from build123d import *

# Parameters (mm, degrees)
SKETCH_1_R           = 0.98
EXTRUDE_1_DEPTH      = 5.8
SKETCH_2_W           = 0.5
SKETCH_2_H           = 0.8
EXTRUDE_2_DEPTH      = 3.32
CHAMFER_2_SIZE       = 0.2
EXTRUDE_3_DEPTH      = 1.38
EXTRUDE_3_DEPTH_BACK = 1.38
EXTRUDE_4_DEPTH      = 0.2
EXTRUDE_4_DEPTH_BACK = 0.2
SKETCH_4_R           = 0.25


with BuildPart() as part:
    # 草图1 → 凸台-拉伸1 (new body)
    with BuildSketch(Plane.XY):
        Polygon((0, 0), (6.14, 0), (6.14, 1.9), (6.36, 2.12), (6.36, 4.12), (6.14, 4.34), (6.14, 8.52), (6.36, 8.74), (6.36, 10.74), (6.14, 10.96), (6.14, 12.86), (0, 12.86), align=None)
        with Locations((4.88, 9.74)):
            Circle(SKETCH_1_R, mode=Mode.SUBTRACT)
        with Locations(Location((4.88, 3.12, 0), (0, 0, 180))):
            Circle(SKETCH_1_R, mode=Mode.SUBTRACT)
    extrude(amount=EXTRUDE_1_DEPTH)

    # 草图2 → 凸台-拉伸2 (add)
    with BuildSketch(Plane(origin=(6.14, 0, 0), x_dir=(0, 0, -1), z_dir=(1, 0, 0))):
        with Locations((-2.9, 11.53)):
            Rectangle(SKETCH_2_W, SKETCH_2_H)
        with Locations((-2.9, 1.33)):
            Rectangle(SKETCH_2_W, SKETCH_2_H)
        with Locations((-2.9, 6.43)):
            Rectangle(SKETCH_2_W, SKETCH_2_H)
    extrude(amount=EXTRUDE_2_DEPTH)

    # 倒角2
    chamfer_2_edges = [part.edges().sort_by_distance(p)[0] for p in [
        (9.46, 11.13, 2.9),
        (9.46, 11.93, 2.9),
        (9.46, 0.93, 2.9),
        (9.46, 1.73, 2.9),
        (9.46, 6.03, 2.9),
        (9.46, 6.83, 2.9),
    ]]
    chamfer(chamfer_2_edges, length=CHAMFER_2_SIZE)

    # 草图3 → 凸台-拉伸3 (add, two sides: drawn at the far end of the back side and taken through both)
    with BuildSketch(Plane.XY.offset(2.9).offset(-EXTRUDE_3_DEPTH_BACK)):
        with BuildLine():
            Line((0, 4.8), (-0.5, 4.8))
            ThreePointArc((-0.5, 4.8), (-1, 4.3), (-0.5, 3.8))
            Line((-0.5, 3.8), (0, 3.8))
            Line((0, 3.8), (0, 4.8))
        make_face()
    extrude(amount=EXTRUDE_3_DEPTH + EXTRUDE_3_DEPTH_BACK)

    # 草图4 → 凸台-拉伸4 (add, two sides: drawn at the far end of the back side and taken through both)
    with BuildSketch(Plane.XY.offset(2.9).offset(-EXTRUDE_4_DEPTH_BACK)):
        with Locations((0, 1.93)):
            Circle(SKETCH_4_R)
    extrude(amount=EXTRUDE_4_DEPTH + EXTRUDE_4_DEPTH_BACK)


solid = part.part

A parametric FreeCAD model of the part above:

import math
import FreeCAD as App
import Part
import Sketcher


def edges_at(feature, points):
    """Names of the edges that pass closest to the given points."""
    edges = feature.Shape.Edges
    near = lambda p: min(range(len(edges)), key=lambda i: edges[i].distToShape(Part.Vertex(*p))[0])
    return sorted({f"Edge{near(p) + 1}" for p in points})


def add_polygon(sketch, points):
    """Adds a closed chain of lines whose ends are joined by coincident constraints."""
    first, n = sketch.GeometryCount, len(points)
    for a, b in zip(points, points[1:] + points[:1]):
        sketch.addGeometry(Part.LineSegment(App.Vector(*a, 0), App.Vector(*b, 0)), False)
    for i in range(n):
        sketch.addConstraint(Sketcher.Constraint("Coincident", first + i, 2, first + (i + 1) % n, 1))

doc = App.newDocument("Part")
params = doc.addObject("Spreadsheet::Sheet", "Params")
for row, (alias, value) in enumerate([
    ("sketch1_diameter", "1.96 mm"),
    ("sketch1_height", "2 mm"),
    ("sketch1_height2", "1.9 mm"),
    ("sketch1_width", "6.14 mm"),
    ("sketch1_height3", "4.18 mm"),
    ("pad1_length", "5.8 mm"),
    ("sketch2_width", "0.8 mm"),
    ("sketch2_height", "0.5 mm"),
    ("pad2_length", "3.32 mm"),
    ("chamfer_size", "0.2 mm"),
    ("sketch3_radius", "0.5 mm"),
    ("sketch3_width", "0.5 mm"),
    ("pad3_length", "1.38 mm"),
    ("pad3_length2", "1.38 mm"),
    ("sketch4_diameter", "0.5 mm"),
    ("pad4_length", "0.2 mm"),
    ("pad4_length2", "0.2 mm"),
], start=1):
    params.set(f"A{row}", alias)
    params.set(f"B{row}", "=" + value)
    params.setAlias(f"B{row}", alias)

body = doc.addObject("PartDesign::Body", "Body")

# Sketch on XY plane
sketch1 = body.newObject("Sketcher::SketchObject", "Sketch")
sketch1.AttachmentSupport = (doc.getObject("XY_Plane"), [""])
sketch1.MapMode = "FlatFace"
add_polygon(sketch1, [(0, 0), (6.14, 0), (6.14, 1.9), (6.36, 2.12), (6.36, 4.12), (6.14, 4.34), (6.14, 8.52), (6.36, 8.74), (6.36, 10.74), (6.14, 10.96), (6.14, 12.86), (0, 12.86)])  # lines 0-11
sketch1.addGeometry(Part.Circle(App.Vector(4.88, 3.12, 0), App.Vector(0, 0, 1), 0.98), False)  # 12
sketch1.addGeometry(Part.Circle(App.Vector(4.88, 9.74, 0), App.Vector(0, 0, 1), 0.98), False)  # 13
sketch1.addConstraint([
    Sketcher.Constraint("Horizontal", 0),
    Sketcher.Constraint("Vertical", 1),
    Sketcher.Constraint("Vertical", 3),
    Sketcher.Constraint("Vertical", 5),
    Sketcher.Constraint("Vertical", 7),
    Sketcher.Constraint("Vertical", 9),
    Sketcher.Constraint("Horizontal", 10),
    Sketcher.Constraint("Vertical", 11),
    Sketcher.Constraint("Coincident", 11, 2, -1, 1),
    Sketcher.Constraint("Equal", 12, 13),
    Sketcher.Constraint("Perpendicular", 2, 4),
    Sketcher.Constraint("Perpendicular", 4, 6),
    Sketcher.Constraint("Perpendicular", 6, 8),
    Sketcher.Constraint("Vertical", 12, 3, 13, 3),
    Sketcher.Constraint("Vertical", 1, 2, 4, 2),
    Sketcher.Constraint("Vertical", 3, 2, 6, 2),
    Sketcher.Constraint("Vertical", 5, 2, 8, 2),
    Sketcher.Constraint("Equal", 3, 7),
    Sketcher.Constraint("Equal", 1, 9),
    Sketcher.Constraint("Equal", 2, 4),
    Sketcher.Constraint("Diameter", 12, 1.96),
    Sketcher.Constraint("DistanceY", 3, 1, 3, 2, 2.0),
    Sketcher.Constraint("DistanceY", 1, 1, 1, 2, 1.9),
    Sketcher.Constraint("DistanceY", 2, 2, 12, 3, 1.0),
    Sketcher.Constraint("DistanceY", 6, 2, 13, 3, 1.0),
    Sketcher.Constraint("DistanceX", 0, 1, 0, 2, 6.14),
    Sketcher.Constraint("DistanceY", 5, 1, 5, 2, 4.18),
    Sketcher.Constraint("DistanceY", 11, 2, 11, 1, 12.86),
    Sketcher.Constraint("DistanceX", -1, 1, 12, 3, 4.88),
])
sketch1.setExpression("Constraints[32]", "Params.sketch1_diameter")
sketch1.setExpression("Constraints[33]", "Params.sketch1_height")
sketch1.setExpression("Constraints[34]", "Params.sketch1_height2")
sketch1.setExpression("Constraints[37]", "Params.sketch1_width")
sketch1.setExpression("Constraints[38]", "Params.sketch1_height3")
pad1 = body.newObject("PartDesign::Pad", "Pad")
pad1.Profile = sketch1
pad1.setExpression("Length", "Params.pad1_length")

# Sketch on YZ plane
sketch2 = body.newObject("Sketcher::SketchObject", "Sketch001")
sketch2.AttachmentSupport = (doc.getObject("YZ_Plane"), [""])
sketch2.MapMode = "FlatFace"
sketch2.AttachmentOffset = App.Placement(App.Vector(0, 0, 6.14), App.Rotation())
add_polygon(sketch2, [(11.9, 3.1), (11.1, 3.1), (11.1, 2.6), (11.9, 2.6)])  # lines 0-3
add_polygon(sketch2, [(1.7, 3.1), (0.9, 3.1), (0.9, 2.6), (1.7, 2.6)])  # lines 4-7
add_polygon(sketch2, [(6.8, 3.1), (6, 3.1), (6, 2.6), (6.8, 2.6)])  # lines 8-11
sketch2.addConstraint([
    Sketcher.Constraint("Horizontal", 0),
    Sketcher.Constraint("Vertical", 1),
    Sketcher.Constraint("Horizontal", 2),
    Sketcher.Constraint("Vertical", 3),
    Sketcher.Constraint("Horizontal", 4),
    Sketcher.Constraint("Vertical", 5),
    Sketcher.Constraint("Horizontal", 6),
    Sketcher.Constraint("Vertical", 7),
    Sketcher.Constraint("Horizontal", 8),
    Sketcher.Constraint("Vertical", 9),
    Sketcher.Constraint("Horizontal", 10),
    Sketcher.Constraint("Vertical", 11),
    Sketcher.Constraint("Horizontal", 3, 2, 4, 2),
    Sketcher.Constraint("Horizontal", 2, 2, 5, 2),
    Sketcher.Constraint("Horizontal", 7, 2, 8, 2),
    Sketcher.Constraint("Horizontal", 6, 2, 9, 2),
    Sketcher.Constraint("Equal", 2, 4),
    Sketcher.Constraint("Equal", 6, 8),
    Sketcher.Constraint("DistanceX", 0, 2, 0, 1, 0.8),
    Sketcher.Constraint("DistanceY", 1, 2, 1, 1, 0.5),
    Sketcher.Constraint("DistanceX", 4, 2, 3, 2, 11.0),
    Sketcher.Constraint("DistanceX", 7, 2, 8, 2, 4.3),
    Sketcher.Constraint("DistanceX", -1, 1, 0, 2, 11.13),
    Sketcher.Constraint("DistanceY", -1, 1, 0, 2, 3.15),
])
sketch2.setExpression("Constraints[30]", "Params.sketch2_width")
sketch2.setExpression("Constraints[31]", "Params.sketch2_height")
pad2 = body.newObject("PartDesign::Pad", "Pad001")
pad2.Profile = sketch2
pad2.setExpression("Length", "Params.pad2_length")
doc.recompute()

chamfer = body.newObject("PartDesign::Chamfer", "Chamfer")
chamfer.Base = (pad2, edges_at(pad2, [
    (9.46, 11.13, 2.9),
    (9.46, 11.93, 2.9),
    (9.46, 0.93, 2.9),
    (9.46, 1.73, 2.9),
    (9.46, 6.03, 2.9),
    (9.46, 6.83, 2.9),
]))
chamfer.setExpression("Size", "Params.chamfer_size")

# Sketch on XY plane
sketch3 = body.newObject("Sketcher::SketchObject", "Sketch002")
sketch3.AttachmentSupport = (doc.getObject("XY_Plane"), [""])
sketch3.MapMode = "FlatFace"
sketch3.AttachmentOffset = App.Placement(App.Vector(0, 0, 2.9), App.Rotation())
sketch3.addGeometry([
    Part.LineSegment(App.Vector(0, 4.8, 0), App.Vector(-0.5, 4.8, 0)),
    Part.ArcOfCircle(Part.Circle(App.Vector(-0.5, 4.3, 0), App.Vector(0, 0, 1), 0.5), math.radians(90), math.radians(270)),
    Part.LineSegment(App.Vector(-0.5, 3.8, 0), App.Vector(0, 3.8, 0)),
    Part.LineSegment(App.Vector(0, 3.8, 0), App.Vector(0, 4.8, 0)),
], False)
sketch3.addConstraint([
    Sketcher.Constraint("Tangent", 0, 2, 1, 1),
    Sketcher.Constraint("Tangent", 1, 2, 2, 1),
    Sketcher.Constraint("Coincident", 2, 2, 3, 1),
    Sketcher.Constraint("Coincident", 3, 2, 0, 1),
    Sketcher.Constraint("Horizontal", 0),
    Sketcher.Constraint("Horizontal", 2),
    Sketcher.Constraint("Vertical", 3),
    Sketcher.Constraint("PointOnObject", 2, 2, -2),
    Sketcher.Constraint("Radius", 1, 0.5),
    Sketcher.Constraint("DistanceX", 0, 2, 0, 1, 0.5),
    Sketcher.Constraint("DistanceY", -1, 1, 1, 3, 4.3),
])
sketch3.setExpression("Constraints[8]", "Params.sketch3_radius")
sketch3.setExpression("Constraints[9]", "Params.sketch3_width")
pad3 = body.newObject("PartDesign::Pad", "Pad002")
pad3.Profile = sketch3
pad3.Type = "TwoLengths"
pad3.setExpression("Length", "Params.pad3_length")
pad3.setExpression("Length2", "Params.pad3_length2")

# Sketch on XY plane
sketch4 = body.newObject("Sketcher::SketchObject", "Sketch003")
sketch4.AttachmentSupport = (doc.getObject("XY_Plane"), [""])
sketch4.MapMode = "FlatFace"
sketch4.AttachmentOffset = App.Placement(App.Vector(0, 0, 2.9), App.Rotation())
sketch4.addGeometry(Part.Circle(App.Vector(0, 1.93, 0), App.Vector(0, 0, 1), 0.25), False)
sketch4.addConstraint([
    Sketcher.Constraint("PointOnObject", 0, 3, -2),
    Sketcher.Constraint("Diameter", 0, 0.5),
    Sketcher.Constraint("DistanceY", -1, 1, 0, 3, 1.93),
])
sketch4.setExpression("Constraints[1]", "Params.sketch4_diameter")
pad4 = body.newObject("PartDesign::Pad", "Pad003")
pad4.Profile = sketch4
pad4.Type = "TwoLengths"
pad4.setExpression("Length", "Params.pad4_length")
pad4.setExpression("Length2", "Params.pad4_length2")

doc.recompute()
